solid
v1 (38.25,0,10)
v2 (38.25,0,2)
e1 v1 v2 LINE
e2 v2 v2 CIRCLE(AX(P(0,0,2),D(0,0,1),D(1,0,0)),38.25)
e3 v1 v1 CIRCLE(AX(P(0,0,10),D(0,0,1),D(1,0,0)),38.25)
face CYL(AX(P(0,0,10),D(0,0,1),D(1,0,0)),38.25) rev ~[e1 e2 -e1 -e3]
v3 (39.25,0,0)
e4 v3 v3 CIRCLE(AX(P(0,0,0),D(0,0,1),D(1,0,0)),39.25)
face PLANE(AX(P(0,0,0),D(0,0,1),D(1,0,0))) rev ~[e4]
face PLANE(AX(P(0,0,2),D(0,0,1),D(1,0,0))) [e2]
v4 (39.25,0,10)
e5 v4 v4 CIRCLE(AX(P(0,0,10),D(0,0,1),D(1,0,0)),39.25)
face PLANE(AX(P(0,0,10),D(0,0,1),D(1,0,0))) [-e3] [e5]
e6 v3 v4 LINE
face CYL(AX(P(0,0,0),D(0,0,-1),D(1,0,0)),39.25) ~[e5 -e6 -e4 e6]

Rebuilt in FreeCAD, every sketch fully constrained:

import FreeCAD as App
import Part
import Sketcher
from FreeCAD import Vector
Q = App.Units.Quantity

doc = App.newDocument("Part")
body = doc.addObject("PartDesign::Body", "Body")

sketch1 = doc.addObject("Sketcher::SketchObject", "Sketch")
body.addObject(sketch1)
sketch1.AttachmentSupport = (doc.XY_Plane, [""])
sketch1.MapMode = "FlatFace"
sketch1.addGeometry(Part.Circle(Vector(0, 0, 0), Vector(0, 0, 1), 39), False)
sketch1.addConstraint(Sketcher.Constraint("Coincident", 0, 3, -1, 1))
sketch1.addConstraint(Sketcher.Constraint("Diameter", 0, Q("78.5 mm")))
pad1 = doc.addObject("PartDesign::Pad", "Pad")
body.addObject(pad1)
pad1.Profile = sketch1
pad1.Length = 10

sketch2 = doc.addObject("Sketcher::SketchObject", "Sketch001")
body.addObject(sketch2)
sketch2.AttachmentSupport = (doc.XY_Plane, [""])
sketch2.MapMode = "FlatFace"
sketch2.AttachmentOffset = App.Placement(Vector(0, 0, 10), App.Rotation())
sketch2.addGeometry(Part.Circle(Vector(0, 0, 0), Vector(0, 0, 1), 38), False)
sketch2.addConstraint(Sketcher.Constraint("Coincident", 0, 3, -1, 1))
sketch2.addConstraint(Sketcher.Constraint("Diameter", 0, Q("76.5 mm")))
pocket1 = doc.addObject("PartDesign::Pocket", "Pocket")
body.addObject(pocket1)
pocket1.Profile = sketch2
pocket1.Length = 8

doc.recompute()
